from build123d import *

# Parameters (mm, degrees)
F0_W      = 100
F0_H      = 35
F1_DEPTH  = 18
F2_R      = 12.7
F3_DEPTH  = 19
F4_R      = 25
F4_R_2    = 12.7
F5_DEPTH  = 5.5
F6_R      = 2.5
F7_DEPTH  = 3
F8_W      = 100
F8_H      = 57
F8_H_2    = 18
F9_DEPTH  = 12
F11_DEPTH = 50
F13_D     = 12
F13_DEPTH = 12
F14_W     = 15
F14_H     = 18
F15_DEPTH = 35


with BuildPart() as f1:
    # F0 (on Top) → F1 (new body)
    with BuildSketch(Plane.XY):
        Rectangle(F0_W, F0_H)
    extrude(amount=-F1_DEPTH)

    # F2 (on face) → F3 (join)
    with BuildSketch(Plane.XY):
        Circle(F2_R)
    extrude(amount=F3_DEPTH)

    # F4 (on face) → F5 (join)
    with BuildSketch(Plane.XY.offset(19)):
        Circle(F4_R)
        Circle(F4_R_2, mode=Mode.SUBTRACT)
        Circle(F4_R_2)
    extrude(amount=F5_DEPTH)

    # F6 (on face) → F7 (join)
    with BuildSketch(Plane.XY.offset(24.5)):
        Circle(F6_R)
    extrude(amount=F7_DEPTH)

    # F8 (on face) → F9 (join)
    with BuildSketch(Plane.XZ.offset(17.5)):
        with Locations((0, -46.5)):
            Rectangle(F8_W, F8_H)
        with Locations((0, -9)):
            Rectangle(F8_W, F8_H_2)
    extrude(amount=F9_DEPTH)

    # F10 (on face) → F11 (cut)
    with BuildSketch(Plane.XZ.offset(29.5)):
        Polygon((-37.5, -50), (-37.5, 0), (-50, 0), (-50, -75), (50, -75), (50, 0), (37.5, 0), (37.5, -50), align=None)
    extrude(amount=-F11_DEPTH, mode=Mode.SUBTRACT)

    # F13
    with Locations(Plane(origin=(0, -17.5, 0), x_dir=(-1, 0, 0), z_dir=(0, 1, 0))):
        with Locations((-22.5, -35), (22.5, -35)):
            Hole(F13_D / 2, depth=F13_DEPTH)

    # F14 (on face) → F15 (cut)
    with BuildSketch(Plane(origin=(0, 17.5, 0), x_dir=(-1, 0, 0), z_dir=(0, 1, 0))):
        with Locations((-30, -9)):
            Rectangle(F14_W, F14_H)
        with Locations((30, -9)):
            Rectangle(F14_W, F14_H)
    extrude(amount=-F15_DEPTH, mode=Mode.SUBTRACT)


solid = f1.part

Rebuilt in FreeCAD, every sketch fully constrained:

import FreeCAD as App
import Part
import Sketcher


def add_polygon(sketch, points):
    """Adds a closed chain of lines whose ends are joined by coincident constraints."""
    first, n = sketch.GeometryCount, len(points)
    for a, b in zip(points, points[1:] + points[:1]):
        sketch.addGeometry(Part.LineSegment(App.Vector(*a, 0), App.Vector(*b, 0)), False)
    for i in range(n):
        sketch.addConstraint(Sketcher.Constraint("Coincident", first + i, 2, first + (i + 1) % n, 1))

doc = App.newDocument("Part")
body = doc.addObject("PartDesign::Body", "Body")

sketch1 = body.newObject("Sketcher::SketchObject", "Sketch")
sketch1.AttachmentSupport = (doc.getObject("XY_Plane"), [""])
sketch1.MapMode = "FlatFace"
add_polygon(sketch1, [(-50, 17.5), (-50, -17.5), (50, -17.5), (50, 17.5)])
sketch1.addConstraint(Sketcher.Constraint("Vertical", 0))
sketch1.addConstraint(Sketcher.Constraint("Horizontal", 1))
sketch1.addConstraint(Sketcher.Constraint("Vertical", 2))
sketch1.addConstraint(Sketcher.Constraint("Horizontal", 3))
sketch1.addConstraint(Sketcher.Constraint("Symmetric", 0, 2, 2, 2, -1, 1))
sketch1.addConstraint(Sketcher.Constraint("DistanceX", 1, 1, 1, 2, 100.0))
sketch1.addConstraint(Sketcher.Constraint("DistanceY", 0, 2, 0, 1, 35.0))
pad1 = body.newObject("PartDesign::Pad", "Pad")
pad1.Profile = sketch1
pad1.Length = 18
pad1.Reversed = True

sketch2 = body.newObject("Sketcher::SketchObject", "Sketch001")
sketch2.AttachmentSupport = (doc.getObject("XY_Plane"), [""])
sketch2.MapMode = "FlatFace"
sketch2.addGeometry(Part.Circle(App.Vector(0, 0, 0), App.Vector(0, 0, 1), 12.7), False)
sketch2.addConstraint(Sketcher.Constraint("Coincident", 0, 3, -1, 1))
sketch2.addConstraint(Sketcher.Constraint("Diameter", 0, 25.4))
pad2 = body.newObject("PartDesign::Pad", "Pad001")
pad2.Profile = sketch2
pad2.Length = 19

sketch3 = body.newObject("Sketcher::SketchObject", "Sketch002")
sketch3.AttachmentSupport = (doc.getObject("XY_Plane"), [""])
sketch3.MapMode = "FlatFace"
sketch3.AttachmentOffset = App.Placement(App.Vector(0, 0, 19), App.Rotation())
sketch3.addGeometry(Part.Circle(App.Vector(0, 0, 0), App.Vector(0, 0, 1), 25), False)
sketch3.addConstraint(Sketcher.Constraint("Coincident", 0, 3, -1, 1))
sketch3.addConstraint(Sketcher.Constraint("Diameter", 0, 50.0))
pad3 = body.newObject("PartDesign::Pad", "Pad002")
pad3.Profile = sketch3
pad3.Length = 5.5

sketch4 = body.newObject("Sketcher::SketchObject", "Sketch003")
sketch4.AttachmentSupport = (doc.getObject("XY_Plane"), [""])
sketch4.MapMode = "FlatFace"
sketch4.AttachmentOffset = App.Placement(App.Vector(0, 0, 24.5), App.Rotation())
sketch4.addGeometry(Part.Circle(App.Vector(0, 0, 0), App.Vector(0, 0, 1), 2.5), False)
sketch4.addConstraint(Sketcher.Constraint("Coincident", 0, 3, -1, 1))
sketch4.addConstraint(Sketcher.Constraint("Diameter", 0, 5.0))
pad4 = body.newObject("PartDesign::Pad", "Pad003")
pad4.Profile = sketch4
pad4.Length = 3

sketch5 = body.newObject("Sketcher::SketchObject", "Sketch004")
sketch5.AttachmentSupport = (doc.getObject("XZ_Plane"), [""])
sketch5.MapMode = "FlatFace"
sketch5.AttachmentOffset = App.Placement(App.Vector(0, 0, 17.5), App.Rotation())
add_polygon(sketch5, [(-50, -75), (50, -75), (50, 0), (-50, 0)])
sketch5.addConstraint(Sketcher.Constraint("Horizontal", 0))
sketch5.addConstraint(Sketcher.Constraint("Vertical", 1))
sketch5.addConstraint(Sketcher.Constraint("Horizontal", 2))
sketch5.addConstraint(Sketcher.Constraint("Vertical", 3))
sketch5.addConstraint(Sketcher.Constraint("Symmetric", 1, 2, 2, 2, -1, 1))
sketch5.addConstraint(Sketcher.Constraint("DistanceX", 0, 1, 0, 2, 100.0))
sketch5.addConstraint(Sketcher.Constraint("DistanceY", 1, 1, 1, 2, 75.0))
pad5 = body.newObject("PartDesign::Pad", "Pad004")
pad5.Profile = sketch5
pad5.Length = 12

sketch6 = body.newObject("Sketcher::SketchObject", "Sketch005")
sketch6.AttachmentSupport = (doc.getObject("XZ_Plane"), [""])
sketch6.MapMode = "FlatFace"
sketch6.AttachmentOffset = App.Placement(App.Vector(0, 0, 29.5), App.Rotation())
add_polygon(sketch6, [(-37.5, -50), (-37.5, 0), (-50, 0), (-50, -75), (50, -75), (50, 0), (37.5, 0), (37.5, -50)])
sketch6.addConstraint(Sketcher.Constraint("Vertical", 0))
sketch6.addConstraint(Sketcher.Constraint("Horizontal", 1))
sketch6.addConstraint(Sketcher.Constraint("Vertical", 2))
sketch6.addConstraint(Sketcher.Constraint("Horizontal", 3))
sketch6.addConstraint(Sketcher.Constraint("Vertical", 4))
sketch6.addConstraint(Sketcher.Constraint("Horizontal", 5))
sketch6.addConstraint(Sketcher.Constraint("Vertical", 6))
sketch6.addConstraint(Sketcher.Constraint("Horizontal", 7))
sketch6.addConstraint(Sketcher.Constraint("Symmetric", 1, 2, 4, 2, -1, 1))
sketch6.addConstraint(Sketcher.Constraint("Symmetric", 0, 2, 5, 2, -2))
sketch6.addConstraint(Sketcher.Constraint("Equal", 7, 2))
sketch6.addConstraint(Sketcher.Constraint("DistanceX", 3, 1, 3, 2, 100.0))
sketch6.addConstraint(Sketcher.Constraint("DistanceX", 7, 2, 7, 1, 75.0))
sketch6.addConstraint(Sketcher.Constraint("DistanceY", 0, 1, 0, 2, 50.0))
pocket1 = body.newObject("PartDesign::Pocket", "Pocket")
pocket1.Profile = sketch6
pocket1.Length = 50

sketch7 = body.newObject("Sketcher::SketchObject", "Sketch006")
sketch7.AttachmentSupport = (doc.getObject("XZ_Plane"), [""])
sketch7.MapMode = "FlatFace"
sketch7.AttachmentOffset = App.Placement(App.Vector(0, 0, 17.5), App.Rotation())
sketch7.addGeometry(Part.Circle(App.Vector(22.5, -35, 0), App.Vector(0, 0, 1), 6), False)
sketch7.addGeometry(Part.Circle(App.Vector(-22.5, -35, 0), App.Vector(0, 0, 1), 6), False)
sketch7.addConstraint(Sketcher.Constraint("Equal", 0, 1))
sketch7.addConstraint(Sketcher.Constraint("Symmetric", 0, 3, 1, 3, -2))
sketch7.addConstraint(Sketcher.Constraint("Diameter", 0, 12.0))
sketch7.addConstraint(Sketcher.Constraint("DistanceY", 0, 3, -1, 1, 35.0))
sketch7.addConstraint(Sketcher.Constraint("DistanceX", 1, 3, 0, 3, 45.0))
doc.recompute()
hole = body.newObject("PartDesign::Hole", "Hole")
hole.Profile = sketch7
hole.ThreadType = "None"
hole.Diameter = 12
hole.DepthType = "Dimension"
hole.Depth = 12
hole.DrillPoint = "Flat"
hole.Reversed = True

sketch8 = body.newObject("Sketcher::SketchObject", "Sketch007")
sketch8.AttachmentSupport = (doc.getObject("XZ_Plane"), [""])
sketch8.MapMode = "FlatFace"
sketch8.AttachmentOffset = App.Placement(App.Vector(0, 0, -17.5), App.Rotation())
add_polygon(sketch8, [(37.5, 0), (37.5, -18), (22.5, -18), (22.5, 0)])
add_polygon(sketch8, [(-22.5, 0), (-22.5, -18), (-37.5, -18), (-37.5, 0)])
sketch8.addConstraint(Sketcher.Constraint("Vertical", 0))
sketch8.addConstraint(Sketcher.Constraint("Horizontal", 1))
sketch8.addConstraint(Sketcher.Constraint("Vertical", 2))
sketch8.addConstraint(Sketcher.Constraint("Horizontal", 3))
sketch8.addConstraint(Sketcher.Constraint("Vertical", 4))
sketch8.addConstraint(Sketcher.Constraint("Horizontal", 5))
sketch8.addConstraint(Sketcher.Constraint("Vertical", 6))
sketch8.addConstraint(Sketcher.Constraint("Horizontal", 7))
sketch8.addConstraint(Sketcher.Constraint("Symmetric", 3, 2, 6, 2, -1, 1))
sketch8.addConstraint(Sketcher.Constraint("Symmetric", 1, 2, 4, 2, -2))
sketch8.addConstraint(Sketcher.Constraint("PointOnObject", 2, 2, -1))
sketch8.addConstraint(Sketcher.Constraint("DistanceX", 1, 2, 1, 1, 15.0))
sketch8.addConstraint(Sketcher.Constraint("DistanceY", 0, 2, 0, 1, 18.0))
sketch8.addConstraint(Sketcher.Constraint("DistanceX", 4, 2, 1, 2, 45.0))
pocket2 = body.newObject("PartDesign::Pocket", "Pocket001")
pocket2.Profile = sketch8
pocket2.Length = 35
pocket2.Reversed = True

doc.recompute()
